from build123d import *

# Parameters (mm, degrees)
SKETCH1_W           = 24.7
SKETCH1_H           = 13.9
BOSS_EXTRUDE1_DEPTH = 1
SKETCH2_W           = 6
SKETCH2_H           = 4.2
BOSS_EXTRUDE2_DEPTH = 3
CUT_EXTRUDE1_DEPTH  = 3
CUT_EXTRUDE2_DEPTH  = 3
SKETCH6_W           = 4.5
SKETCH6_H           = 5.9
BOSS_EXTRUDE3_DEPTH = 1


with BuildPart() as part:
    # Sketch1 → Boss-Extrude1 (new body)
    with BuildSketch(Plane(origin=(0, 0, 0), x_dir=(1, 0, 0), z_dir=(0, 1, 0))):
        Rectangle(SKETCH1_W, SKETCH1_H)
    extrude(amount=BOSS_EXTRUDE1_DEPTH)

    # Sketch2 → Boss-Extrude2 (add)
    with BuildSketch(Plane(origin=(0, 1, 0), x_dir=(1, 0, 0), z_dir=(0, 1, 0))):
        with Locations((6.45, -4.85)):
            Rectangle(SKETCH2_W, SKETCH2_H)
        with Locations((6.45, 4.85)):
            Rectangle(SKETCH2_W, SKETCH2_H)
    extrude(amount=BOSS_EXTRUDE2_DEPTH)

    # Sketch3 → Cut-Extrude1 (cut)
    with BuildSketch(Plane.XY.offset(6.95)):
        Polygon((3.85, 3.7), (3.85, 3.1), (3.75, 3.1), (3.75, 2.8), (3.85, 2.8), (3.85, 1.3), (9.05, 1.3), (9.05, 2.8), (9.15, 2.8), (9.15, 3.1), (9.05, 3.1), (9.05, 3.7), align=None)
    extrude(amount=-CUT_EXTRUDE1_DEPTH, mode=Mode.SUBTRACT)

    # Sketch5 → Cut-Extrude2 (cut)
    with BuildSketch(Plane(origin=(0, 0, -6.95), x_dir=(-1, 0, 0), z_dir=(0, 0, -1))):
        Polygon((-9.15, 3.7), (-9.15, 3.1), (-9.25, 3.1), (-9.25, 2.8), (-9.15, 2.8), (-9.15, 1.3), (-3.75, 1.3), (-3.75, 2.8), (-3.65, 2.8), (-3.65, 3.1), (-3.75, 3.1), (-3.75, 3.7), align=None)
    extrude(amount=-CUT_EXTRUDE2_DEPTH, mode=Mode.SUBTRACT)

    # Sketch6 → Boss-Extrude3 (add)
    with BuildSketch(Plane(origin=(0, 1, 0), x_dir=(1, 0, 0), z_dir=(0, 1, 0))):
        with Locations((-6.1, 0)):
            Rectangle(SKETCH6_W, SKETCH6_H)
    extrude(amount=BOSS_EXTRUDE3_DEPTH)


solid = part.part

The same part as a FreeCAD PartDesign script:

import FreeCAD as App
import Part
import Sketcher

V = App.Vector


def add_polygon(sketch, points):
    """Adds a closed chain of lines whose ends are joined by coincident constraints."""
    first, n = sketch.GeometryCount, len(points)
    for a, b in zip(points, points[1:] + points[:1]):
        sketch.addGeometry(Part.LineSegment(App.Vector(*a, 0), App.Vector(*b, 0)), False)
    for i in range(n):
        sketch.addConstraint(Sketcher.Constraint("Coincident", first + i, 2, first + (i + 1) % n, 1))

doc = App.newDocument("Part")
body = doc.addObject("PartDesign::Body", "Body")

sketch1 = doc.addObject("Sketcher::SketchObject", "Sketch")
body.addObject(sketch1)
sketch1.AttachmentSupport = (doc.XZ_Plane, [""])
sketch1.MapMode = "FlatFace"
add_polygon(sketch1, [(-12.35, -6.95), (-12.35, 6.95), (12.35, 6.95), (12.35, -6.95)])
sketch1.addConstraint(Sketcher.Constraint("Vertical", 0))
sketch1.addConstraint(Sketcher.Constraint("Horizontal", 1))
sketch1.addConstraint(Sketcher.Constraint("Vertical", 2))
sketch1.addConstraint(Sketcher.Constraint("Horizontal", 3))
sketch1.addConstraint(Sketcher.Constraint("Symmetric", 0, 2, 2, 2, -1, 1))
sketch1.addConstraint(Sketcher.Constraint("DistanceX", 1, 1, 1, 2, 24.7))
sketch1.addConstraint(Sketcher.Constraint("DistanceY", 0, 1, 0, 2, 13.9))
pad1 = doc.addObject("PartDesign::Pad", "Pad")
body.addObject(pad1)
pad1.Profile = sketch1
pad1.Length = 1
pad1.Reversed = True

sketch2 = doc.addObject("Sketcher::SketchObject", "Sketch001")
body.addObject(sketch2)
sketch2.AttachmentSupport = (doc.XZ_Plane, [""])
sketch2.MapMode = "FlatFace"
sketch2.AttachmentOffset = App.Placement(V(0, 0, -1), App.Rotation())
add_polygon(sketch2, [(3.45, 2.75), (3.45, 6.95), (9.45, 6.95), (9.45, 2.75)])
add_polygon(sketch2, [(3.45, -6.95), (3.45, -2.75), (9.45, -2.75), (9.45, -6.95)])
sketch2.addConstraint(Sketcher.Constraint("Vertical", 0))
sketch2.addConstraint(Sketcher.Constraint("Horizontal", 1))
sketch2.addConstraint(Sketcher.Constraint("Vertical", 2))
sketch2.addConstraint(Sketcher.Constraint("Horizontal", 3))
sketch2.addConstraint(Sketcher.Constraint("Vertical", 4))
sketch2.addConstraint(Sketcher.Constraint("Horizontal", 5))
sketch2.addConstraint(Sketcher.Constraint("Vertical", 6))
sketch2.addConstraint(Sketcher.Constraint("Horizontal", 7))
sketch2.addConstraint(Sketcher.Constraint("Symmetric", 3, 2, 4, 2, -1))
sketch2.addConstraint(Sketcher.Constraint("Symmetric", 1, 2, 6, 2, -1))
sketch2.addConstraint(Sketcher.Constraint("DistanceX", 1, 1, 1, 2, 6.0))
sketch2.addConstraint(Sketcher.Constraint("DistanceY", 0, 1, 0, 2, 4.2))
sketch2.addConstraint(Sketcher.Constraint("DistanceY", 4, 2, 3, 2, 5.5))
sketch2.addConstraint(Sketcher.Constraint("DistanceX", -1, 1, 0, 2, 3.45))
pad2 = doc.addObject("PartDesign::Pad", "Pad001")
body.addObject(pad2)
pad2.Profile = sketch2
pad2.Length = 3
pad2.Reversed = True

sketch3 = doc.addObject("Sketcher::SketchObject", "Sketch002")
body.addObject(sketch3)
sketch3.AttachmentSupport = (doc.XY_Plane, [""])
sketch3.MapMode = "FlatFace"
sketch3.AttachmentOffset = App.Placement(V(0, 0, 6.95), App.Rotation())
add_polygon(sketch3, [(3.85, 3.7), (3.85, 3.1), (3.75, 3.1), (3.75, 2.8), (3.85, 2.8), (3.85, 1.3), (9.05, 1.3), (9.05, 2.8), (9.15, 2.8), (9.15, 3.1), (9.05, 3.1), (9.05, 3.7)])
sketch3.addConstraint(Sketcher.Constraint("Vertical", 0))
sketch3.addConstraint(Sketcher.Constraint("Horizontal", 1))
sketch3.addConstraint(Sketcher.Constraint("Vertical", 2))
sketch3.addConstraint(Sketcher.Constraint("Horizontal", 3))
sketch3.addConstraint(Sketcher.Constraint("Vertical", 4))
sketch3.addConstraint(Sketcher.Constraint("Horizontal", 5))
sketch3.addConstraint(Sketcher.Constraint("Vertical", 6))
sketch3.addConstraint(Sketcher.Constraint("Horizontal", 7))
sketch3.addConstraint(Sketcher.Constraint("Vertical", 8))
sketch3.addConstraint(Sketcher.Constraint("Horizontal", 9))
sketch3.addConstraint(Sketcher.Constraint("Vertical", 10))
sketch3.addConstraint(Sketcher.Constraint("Horizontal", 11))
sketch3.addConstraint(Sketcher.Constraint("Horizontal", 3, 2, 6, 2))
sketch3.addConstraint(Sketcher.Constraint("Horizontal", 1, 2, 8, 2))
sketch3.addConstraint(Sketcher.Constraint("Vertical", 0, 2, 3, 2))
sketch3.addConstraint(Sketcher.Constraint("Vertical", 6, 2, 9, 2))
sketch3.addConstraint(Sketcher.Constraint("Equal", 3, 7))
sketch3.addConstraint(Sketcher.Constraint("DistanceX", 1, 2, 1, 1, 0.1))
sketch3.addConstraint(Sketcher.Constraint("DistanceX", 5, 1, 5, 2, 5.2))
sketch3.addConstraint(Sketcher.Constraint("DistanceY", 0, 2, 0, 1, 0.6))
sketch3.addConstraint(Sketcher.Constraint("DistanceY", 2, 2, 2, 1, 0.3))
sketch3.addConstraint(Sketcher.Constraint("DistanceY", 4, 2, 4, 1, 1.5))
sketch3.addConstraint(Sketcher.Constraint("DistanceY", -1, 1, 0, 2, 3.1))
sketch3.addConstraint(Sketcher.Constraint("DistanceX", -1, 1, 0, 2, 3.85))
pocket1 = doc.addObject("PartDesign::Pocket", "Pocket")
body.addObject(pocket1)
pocket1.Profile = sketch3
pocket1.Length = 3

sketch4 = doc.addObject("Sketcher::SketchObject", "Sketch003")
body.addObject(sketch4)
sketch4.AttachmentSupport = (doc.XY_Plane, [""])
sketch4.MapMode = "FlatFace"
sketch4.AttachmentOffset = App.Placement(V(0, 0, -6.95), App.Rotation())
add_polygon(sketch4, [(9.15, 3.7), (9.15, 3.1), (9.25, 3.1), (9.25, 2.8), (9.15, 2.8), (9.15, 1.3), (3.75, 1.3), (3.75, 2.8), (3.65, 2.8), (3.65, 3.1), (3.75, 3.1), (3.75, 3.7)])
sketch4.addConstraint(Sketcher.Constraint("Vertical", 0))
sketch4.addConstraint(Sketcher.Constraint("Horizontal", 1))
sketch4.addConstraint(Sketcher.Constraint("Vertical", 2))
sketch4.addConstraint(Sketcher.Constraint("Horizontal", 3))
sketch4.addConstraint(Sketcher.Constraint("Vertical", 4))
sketch4.addConstraint(Sketcher.Constraint("Horizontal", 5))
sketch4.addConstraint(Sketcher.Constraint("Vertical", 6))
sketch4.addConstraint(Sketcher.Constraint("Horizontal", 7))
sketch4.addConstraint(Sketcher.Constraint("Vertical", 8))
sketch4.addConstraint(Sketcher.Constraint("Horizontal", 9))
sketch4.addConstraint(Sketcher.Constraint("Vertical", 10))
sketch4.addConstraint(Sketcher.Constraint("Horizontal", 11))
sketch4.addConstraint(Sketcher.Constraint("Horizontal", 3, 2, 6, 2))
sketch4.addConstraint(Sketcher.Constraint("Horizontal", 1, 2, 8, 2))
sketch4.addConstraint(Sketcher.Constraint("Vertical", 0, 2, 3, 2))
sketch4.addConstraint(Sketcher.Constraint("Vertical", 6, 2, 9, 2))
sketch4.addConstraint(Sketcher.Constraint("Equal", 3, 7))
sketch4.addConstraint(Sketcher.Constraint("DistanceX", 1, 1, 1, 2, 0.1))
sketch4.addConstraint(Sketcher.Constraint("DistanceX", 5, 2, 5, 1, 5.4))
sketch4.addConstraint(Sketcher.Constraint("DistanceY", 0, 2, 0, 1, 0.6))
sketch4.addConstraint(Sketcher.Constraint("DistanceY", 2, 2, 2, 1, 0.3))
sketch4.addConstraint(Sketcher.Constraint("DistanceY", 4, 2, 4, 1, 1.5))
sketch4.addConstraint(Sketcher.Constraint("DistanceY", -1, 1, 0, 2, 3.1))
sketch4.addConstraint(Sketcher.Constraint("DistanceX", -1, 1, 0, 2, 9.15))
pocket2 = doc.addObject("PartDesign::Pocket", "Pocket001")
body.addObject(pocket2)
pocket2.Profile = sketch4
pocket2.Length = 3
pocket2.Reversed = True

sketch5 = doc.addObject("Sketcher::SketchObject", "Sketch004")
body.addObject(sketch5)
sketch5.AttachmentSupport = (doc.XZ_Plane, [""])
sketch5.MapMode = "FlatFace"
sketch5.AttachmentOffset = App.Placement(V(0, 0, -1), App.Rotation())
add_polygon(sketch5, [(-8.35, -2.95), (-8.35, 2.95), (-3.85, 2.95), (-3.85, -2.95)])
sketch5.addConstraint(Sketcher.Constraint("Vertical", 0))
sketch5.addConstraint(Sketcher.Constraint("Horizontal", 1))
sketch5.addConstraint(Sketcher.Constraint("Vertical", 2))
sketch5.addConstraint(Sketcher.Constraint("Horizontal", 3))
sketch5.addConstraint(Sketcher.Constraint("DistanceX", 1, 1, 1, 2, 4.5))
sketch5.addConstraint(Sketcher.Constraint("DistanceY", 0, 1, 0, 2, 5.9))
sketch5.addConstraint(Sketcher.Constraint("DistanceX", 0, 2, -1, 1, 8.35))
sketch5.addConstraint(Sketcher.Constraint("DistanceY", -1, 1, 0, 2, 2.95))
pad3 = doc.addObject("PartDesign::Pad", "Pad002")
body.addObject(pad3)
pad3.Profile = sketch5
pad3.Length = 1
pad3.Reversed = True

doc.recompute()
